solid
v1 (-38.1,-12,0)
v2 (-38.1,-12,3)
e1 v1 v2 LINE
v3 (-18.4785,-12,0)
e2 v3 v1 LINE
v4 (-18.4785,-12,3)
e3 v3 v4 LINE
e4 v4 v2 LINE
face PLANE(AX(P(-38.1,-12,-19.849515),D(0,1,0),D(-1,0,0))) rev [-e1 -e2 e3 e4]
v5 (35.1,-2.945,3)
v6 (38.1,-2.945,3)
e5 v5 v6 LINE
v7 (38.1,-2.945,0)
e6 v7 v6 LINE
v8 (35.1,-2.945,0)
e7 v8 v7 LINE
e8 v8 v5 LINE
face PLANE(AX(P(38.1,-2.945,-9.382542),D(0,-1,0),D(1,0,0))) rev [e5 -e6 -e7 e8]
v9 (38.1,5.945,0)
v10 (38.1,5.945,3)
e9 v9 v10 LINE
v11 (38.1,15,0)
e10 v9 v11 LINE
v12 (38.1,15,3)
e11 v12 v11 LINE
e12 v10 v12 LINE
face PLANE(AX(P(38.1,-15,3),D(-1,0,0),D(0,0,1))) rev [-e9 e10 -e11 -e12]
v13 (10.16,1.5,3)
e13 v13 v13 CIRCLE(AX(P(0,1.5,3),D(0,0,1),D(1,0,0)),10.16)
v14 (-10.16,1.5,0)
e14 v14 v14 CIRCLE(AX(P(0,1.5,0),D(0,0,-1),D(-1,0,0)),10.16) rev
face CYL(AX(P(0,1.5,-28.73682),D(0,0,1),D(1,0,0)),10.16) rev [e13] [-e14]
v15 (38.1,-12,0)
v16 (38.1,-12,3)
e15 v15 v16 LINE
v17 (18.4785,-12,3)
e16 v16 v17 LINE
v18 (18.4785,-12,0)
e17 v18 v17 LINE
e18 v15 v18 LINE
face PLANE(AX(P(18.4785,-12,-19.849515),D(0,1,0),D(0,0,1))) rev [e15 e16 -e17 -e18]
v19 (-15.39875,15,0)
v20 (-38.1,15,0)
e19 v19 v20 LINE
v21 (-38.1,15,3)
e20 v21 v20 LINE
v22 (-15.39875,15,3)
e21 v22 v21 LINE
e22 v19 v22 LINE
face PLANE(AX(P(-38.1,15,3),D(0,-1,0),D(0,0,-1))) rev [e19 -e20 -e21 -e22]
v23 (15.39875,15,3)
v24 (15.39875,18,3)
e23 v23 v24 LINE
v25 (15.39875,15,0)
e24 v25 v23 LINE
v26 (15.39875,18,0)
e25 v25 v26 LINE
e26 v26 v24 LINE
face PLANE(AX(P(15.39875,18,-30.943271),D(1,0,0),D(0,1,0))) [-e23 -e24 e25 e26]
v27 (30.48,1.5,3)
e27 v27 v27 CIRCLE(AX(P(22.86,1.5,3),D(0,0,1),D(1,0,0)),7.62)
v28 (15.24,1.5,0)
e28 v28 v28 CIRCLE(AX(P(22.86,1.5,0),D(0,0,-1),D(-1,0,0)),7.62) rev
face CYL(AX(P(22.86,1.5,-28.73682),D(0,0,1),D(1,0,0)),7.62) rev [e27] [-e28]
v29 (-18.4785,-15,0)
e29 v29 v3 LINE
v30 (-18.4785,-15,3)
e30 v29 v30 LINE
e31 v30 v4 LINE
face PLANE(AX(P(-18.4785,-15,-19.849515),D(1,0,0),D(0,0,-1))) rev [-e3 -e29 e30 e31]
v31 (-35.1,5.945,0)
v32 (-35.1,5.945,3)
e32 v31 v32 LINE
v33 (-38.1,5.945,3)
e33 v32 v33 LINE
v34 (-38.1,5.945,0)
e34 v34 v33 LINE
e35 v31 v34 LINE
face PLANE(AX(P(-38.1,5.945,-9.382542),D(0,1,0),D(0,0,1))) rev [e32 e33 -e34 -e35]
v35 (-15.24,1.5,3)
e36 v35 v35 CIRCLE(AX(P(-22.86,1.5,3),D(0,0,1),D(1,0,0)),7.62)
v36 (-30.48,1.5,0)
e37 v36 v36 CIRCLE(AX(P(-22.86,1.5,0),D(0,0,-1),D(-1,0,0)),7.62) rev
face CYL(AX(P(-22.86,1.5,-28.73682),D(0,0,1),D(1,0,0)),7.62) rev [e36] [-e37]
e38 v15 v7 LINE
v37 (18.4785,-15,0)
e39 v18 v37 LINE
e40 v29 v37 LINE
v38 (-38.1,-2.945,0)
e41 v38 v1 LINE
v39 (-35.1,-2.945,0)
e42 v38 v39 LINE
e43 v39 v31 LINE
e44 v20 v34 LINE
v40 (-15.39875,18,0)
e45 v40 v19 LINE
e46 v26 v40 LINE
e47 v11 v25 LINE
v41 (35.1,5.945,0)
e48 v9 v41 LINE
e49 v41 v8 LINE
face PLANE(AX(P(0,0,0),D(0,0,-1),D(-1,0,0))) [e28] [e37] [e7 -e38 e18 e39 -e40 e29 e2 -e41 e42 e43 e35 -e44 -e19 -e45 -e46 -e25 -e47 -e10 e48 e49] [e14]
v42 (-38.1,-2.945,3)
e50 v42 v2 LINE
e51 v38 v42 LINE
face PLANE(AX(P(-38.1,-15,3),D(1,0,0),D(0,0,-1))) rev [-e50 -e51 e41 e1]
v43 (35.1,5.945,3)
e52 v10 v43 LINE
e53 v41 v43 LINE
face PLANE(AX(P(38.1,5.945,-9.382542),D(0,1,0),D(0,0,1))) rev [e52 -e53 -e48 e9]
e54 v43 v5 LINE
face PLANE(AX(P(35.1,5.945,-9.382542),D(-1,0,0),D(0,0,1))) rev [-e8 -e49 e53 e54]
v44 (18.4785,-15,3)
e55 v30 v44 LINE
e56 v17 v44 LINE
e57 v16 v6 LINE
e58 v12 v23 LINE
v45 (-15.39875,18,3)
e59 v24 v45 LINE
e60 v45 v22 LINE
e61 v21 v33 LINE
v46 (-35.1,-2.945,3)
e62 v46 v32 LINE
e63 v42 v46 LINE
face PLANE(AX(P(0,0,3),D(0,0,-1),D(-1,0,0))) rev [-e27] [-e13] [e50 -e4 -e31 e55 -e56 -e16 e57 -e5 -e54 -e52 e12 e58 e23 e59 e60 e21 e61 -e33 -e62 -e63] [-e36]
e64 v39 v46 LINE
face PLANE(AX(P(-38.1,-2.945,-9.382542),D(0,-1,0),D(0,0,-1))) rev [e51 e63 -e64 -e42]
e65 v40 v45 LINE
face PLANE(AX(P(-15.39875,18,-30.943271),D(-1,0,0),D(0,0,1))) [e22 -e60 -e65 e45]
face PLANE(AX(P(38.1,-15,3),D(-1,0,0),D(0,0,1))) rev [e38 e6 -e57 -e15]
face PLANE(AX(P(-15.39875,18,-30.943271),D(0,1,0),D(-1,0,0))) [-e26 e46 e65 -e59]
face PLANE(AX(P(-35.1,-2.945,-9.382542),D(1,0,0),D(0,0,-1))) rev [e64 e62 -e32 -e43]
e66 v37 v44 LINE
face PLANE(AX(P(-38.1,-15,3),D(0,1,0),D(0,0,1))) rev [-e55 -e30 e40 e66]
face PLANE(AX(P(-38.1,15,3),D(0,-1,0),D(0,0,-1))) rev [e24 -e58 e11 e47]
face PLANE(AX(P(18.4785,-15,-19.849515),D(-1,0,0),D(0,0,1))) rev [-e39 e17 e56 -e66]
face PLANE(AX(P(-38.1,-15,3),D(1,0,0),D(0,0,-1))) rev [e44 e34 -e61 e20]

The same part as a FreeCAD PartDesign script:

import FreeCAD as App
import Part
import Sketcher
from FreeCAD import Vector
Q = App.Units.Quantity


def add_polygon(sketch, points):
    """Adds a closed chain of lines whose ends are joined by coincident constraints."""
    first, n = sketch.GeometryCount, len(points)
    for a, b in zip(points, points[1:] + points[:1]):
        sketch.addGeometry(Part.LineSegment(App.Vector(*a, 0), App.Vector(*b, 0)), False)
    for i in range(n):
        sketch.addConstraint(Sketcher.Constraint("Coincident", first + i, 2, first + (i + 1) % n, 1))

doc = App.newDocument("Part")
body = doc.addObject("PartDesign::Body", "Body")

sketch1 = body.newObject("Sketcher::SketchObject", "Sketch")
sketch1.AttachmentSupport = (doc.getObject("XY_Plane"), [""])
sketch1.MapMode = "FlatFace"
add_polygon(sketch1, [(-38.1, 15), (-38.1, -15), (38.1, -15), (38.1, 15)])
sketch1.addConstraint([
    Sketcher.Constraint("Vertical", 0),
    Sketcher.Constraint("Horizontal", 1),
    Sketcher.Constraint("Vertical", 2),
    Sketcher.Constraint("Horizontal", 3),
    Sketcher.Constraint("Symmetric", 0, 2, 2, 2, -1, 1),
    Sketcher.Constraint("DistanceX", 1, 1, 1, 2, Q("3 in")),
    Sketcher.Constraint("DistanceY", 0, 2, 0, 1, 30.0),
])
pad1 = body.newObject("PartDesign::Pad", "Pad")
pad1.Profile = sketch1
pad1.Length = 3

sketch2 = body.newObject("Sketcher::SketchObject", "Sketch001")
sketch2.AttachmentSupport = (doc.getObject("XY_Plane"), [""])
sketch2.MapMode = "FlatFace"
sketch2.AttachmentOffset = App.Placement(Vector(0, 0, 3), App.Rotation())
add_polygon(sketch2, [(-38.1, -12), (-38.1, -15), (-18.4785, -15), (-18.4785, -12)])
add_polygon(sketch2, [(18.4785, -12), (18.4785, -15), (38.1, -15), (38.1, -12)])
sketch2.addConstraint([
    Sketcher.Constraint("Vertical", 0),
    Sketcher.Constraint("Horizontal", 1),
    Sketcher.Constraint("Vertical", 2),
    Sketcher.Constraint("Horizontal", 3),
    Sketcher.Constraint("Vertical", 4),
    Sketcher.Constraint("Horizontal", 5),
    Sketcher.Constraint("Vertical", 6),
    Sketcher.Constraint("Horizontal", 7),
    Sketcher.Constraint("Symmetric", 1, 2, 4, 2, -2),
    Sketcher.Constraint("Symmetric", 3, 2, 6, 2, -2),
    Sketcher.Constraint("DistanceX", 0, 2, 5, 2, Q("3 in")),
    Sketcher.Constraint("DistanceX", 1, 1, 1, 2, Q("0.7725 in")),
    Sketcher.Constraint("DistanceY", 0, 2, 0, 1, 3.0),
    Sketcher.Constraint("DistanceY", 0, 2, -1, 1, 15.0),
])
pocket1 = body.newObject("PartDesign::Pocket", "Pocket")
pocket1.Profile = sketch2
pocket1.Length = 3

sketch3 = body.newObject("Sketcher::SketchObject", "Sketch002")
sketch3.AttachmentSupport = (doc.getObject("XY_Plane"), [""])
sketch3.MapMode = "FlatFace"
sketch3.AttachmentOffset = App.Placement(Vector(0, 0, 3), App.Rotation())
add_polygon(sketch3, [(-38.1, 5.945), (-38.1, -2.945), (-35.1, -2.945), (-35.1, 5.945)])
add_polygon(sketch3, [(35.1, 5.945), (35.1, -2.945), (38.1, -2.945), (38.1, 5.945)])
sketch3.addConstraint([
    Sketcher.Constraint("Vertical", 0),
    Sketcher.Constraint("Horizontal", 1),
    Sketcher.Constraint("Vertical", 2),
    Sketcher.Constraint("Horizontal", 3),
    Sketcher.Constraint("Vertical", 4),
    Sketcher.Constraint("Horizontal", 5),
    Sketcher.Constraint("Vertical", 6),
    Sketcher.Constraint("Horizontal", 7),
    Sketcher.Constraint("Symmetric", 1, 2, 4, 2, -2),
    Sketcher.Constraint("Symmetric", 3, 2, 6, 2, -2),
    Sketcher.Constraint("DistanceX", 0, 2, 5, 2, Q("3 in")),
    Sketcher.Constraint("DistanceY", 0, 2, 0, 1, Q("0.35 in")),
    Sketcher.Constraint("DistanceX", 1, 1, 1, 2, 3.0),
    Sketcher.Constraint("DistanceY", 0, 2, -1, 1, 2.945),
])
pocket2 = body.newObject("PartDesign::Pocket", "Pocket001")
pocket2.Profile = sketch3
pocket2.Length = 3

sketch4 = body.newObject("Sketcher::SketchObject", "Sketch003")
sketch4.AttachmentSupport = (doc.getObject("XY_Plane"), [""])
sketch4.MapMode = "FlatFace"
sketch4.AttachmentOffset = App.Placement(Vector(0, 0, 3), App.Rotation())
add_polygon(sketch4, [(-15.39875, 18), (-15.39875, 15), (15.39875, 15), (15.39875, 18)])
sketch4.addConstraint([
    Sketcher.Constraint("Vertical", 0),
    Sketcher.Constraint("Horizontal", 1),
    Sketcher.Constraint("Vertical", 2),
    Sketcher.Constraint("Horizontal", 3),
    Sketcher.Constraint("DistanceX", 1, 1, 1, 2, Q("1.2125 in")),
    Sketcher.Constraint("DistanceY", 0, 2, 0, 1, 3.0),
    Sketcher.Constraint("DistanceY", -1, 1, 0, 2, 15.0),
    Sketcher.Constraint("DistanceX", 0, 2, -1, 1, 15.39875),
])
pad2 = body.newObject("PartDesign::Pad", "Pad001")
pad2.Profile = sketch4
pad2.Length = 3
pad2.Reversed = True

sketch5 = body.newObject("Sketcher::SketchObject", "Sketch004")
sketch5.AttachmentSupport = (doc.getObject("XY_Plane"), [""])
sketch5.MapMode = "FlatFace"
sketch5.AttachmentOffset = App.Placement(Vector(0, 0, 3), App.Rotation())
sketch5.addGeometry([
    Part.Circle(Vector(0, 1.5, 0), Vector(0, 0, 1), 10.16),
    Part.Circle(Vector(-22.86, 1.5, 0), Vector(0, 0, 1), 7.62),
    Part.Circle(Vector(22.86, 1.5, 0), Vector(0, 0, 1), 7.62),
], False)
sketch5.addConstraint([
    Sketcher.Constraint("Equal", 1, 2),
    Sketcher.Constraint("Symmetric", 1, 3, 2, 3, -2),
    Sketcher.Constraint("PointOnObject", 0, 3, -2),
    Sketcher.Constraint("Horizontal", 0, 3, 1, 3),
    Sketcher.Constraint("Diameter", 0, Q("0.8 in")),
    Sketcher.Constraint("Diameter", 1, Q("0.6 in")),
    Sketcher.Constraint("DistanceX", 1, 3, -1, 1, Q("0.9 in")),
    Sketcher.Constraint("DistanceY", -1, 1, 0, 3, 1.5),
])
pocket3 = body.newObject("PartDesign::Pocket", "Pocket002")
pocket3.Profile = sketch5
pocket3.Length = 3

doc.recompute()
